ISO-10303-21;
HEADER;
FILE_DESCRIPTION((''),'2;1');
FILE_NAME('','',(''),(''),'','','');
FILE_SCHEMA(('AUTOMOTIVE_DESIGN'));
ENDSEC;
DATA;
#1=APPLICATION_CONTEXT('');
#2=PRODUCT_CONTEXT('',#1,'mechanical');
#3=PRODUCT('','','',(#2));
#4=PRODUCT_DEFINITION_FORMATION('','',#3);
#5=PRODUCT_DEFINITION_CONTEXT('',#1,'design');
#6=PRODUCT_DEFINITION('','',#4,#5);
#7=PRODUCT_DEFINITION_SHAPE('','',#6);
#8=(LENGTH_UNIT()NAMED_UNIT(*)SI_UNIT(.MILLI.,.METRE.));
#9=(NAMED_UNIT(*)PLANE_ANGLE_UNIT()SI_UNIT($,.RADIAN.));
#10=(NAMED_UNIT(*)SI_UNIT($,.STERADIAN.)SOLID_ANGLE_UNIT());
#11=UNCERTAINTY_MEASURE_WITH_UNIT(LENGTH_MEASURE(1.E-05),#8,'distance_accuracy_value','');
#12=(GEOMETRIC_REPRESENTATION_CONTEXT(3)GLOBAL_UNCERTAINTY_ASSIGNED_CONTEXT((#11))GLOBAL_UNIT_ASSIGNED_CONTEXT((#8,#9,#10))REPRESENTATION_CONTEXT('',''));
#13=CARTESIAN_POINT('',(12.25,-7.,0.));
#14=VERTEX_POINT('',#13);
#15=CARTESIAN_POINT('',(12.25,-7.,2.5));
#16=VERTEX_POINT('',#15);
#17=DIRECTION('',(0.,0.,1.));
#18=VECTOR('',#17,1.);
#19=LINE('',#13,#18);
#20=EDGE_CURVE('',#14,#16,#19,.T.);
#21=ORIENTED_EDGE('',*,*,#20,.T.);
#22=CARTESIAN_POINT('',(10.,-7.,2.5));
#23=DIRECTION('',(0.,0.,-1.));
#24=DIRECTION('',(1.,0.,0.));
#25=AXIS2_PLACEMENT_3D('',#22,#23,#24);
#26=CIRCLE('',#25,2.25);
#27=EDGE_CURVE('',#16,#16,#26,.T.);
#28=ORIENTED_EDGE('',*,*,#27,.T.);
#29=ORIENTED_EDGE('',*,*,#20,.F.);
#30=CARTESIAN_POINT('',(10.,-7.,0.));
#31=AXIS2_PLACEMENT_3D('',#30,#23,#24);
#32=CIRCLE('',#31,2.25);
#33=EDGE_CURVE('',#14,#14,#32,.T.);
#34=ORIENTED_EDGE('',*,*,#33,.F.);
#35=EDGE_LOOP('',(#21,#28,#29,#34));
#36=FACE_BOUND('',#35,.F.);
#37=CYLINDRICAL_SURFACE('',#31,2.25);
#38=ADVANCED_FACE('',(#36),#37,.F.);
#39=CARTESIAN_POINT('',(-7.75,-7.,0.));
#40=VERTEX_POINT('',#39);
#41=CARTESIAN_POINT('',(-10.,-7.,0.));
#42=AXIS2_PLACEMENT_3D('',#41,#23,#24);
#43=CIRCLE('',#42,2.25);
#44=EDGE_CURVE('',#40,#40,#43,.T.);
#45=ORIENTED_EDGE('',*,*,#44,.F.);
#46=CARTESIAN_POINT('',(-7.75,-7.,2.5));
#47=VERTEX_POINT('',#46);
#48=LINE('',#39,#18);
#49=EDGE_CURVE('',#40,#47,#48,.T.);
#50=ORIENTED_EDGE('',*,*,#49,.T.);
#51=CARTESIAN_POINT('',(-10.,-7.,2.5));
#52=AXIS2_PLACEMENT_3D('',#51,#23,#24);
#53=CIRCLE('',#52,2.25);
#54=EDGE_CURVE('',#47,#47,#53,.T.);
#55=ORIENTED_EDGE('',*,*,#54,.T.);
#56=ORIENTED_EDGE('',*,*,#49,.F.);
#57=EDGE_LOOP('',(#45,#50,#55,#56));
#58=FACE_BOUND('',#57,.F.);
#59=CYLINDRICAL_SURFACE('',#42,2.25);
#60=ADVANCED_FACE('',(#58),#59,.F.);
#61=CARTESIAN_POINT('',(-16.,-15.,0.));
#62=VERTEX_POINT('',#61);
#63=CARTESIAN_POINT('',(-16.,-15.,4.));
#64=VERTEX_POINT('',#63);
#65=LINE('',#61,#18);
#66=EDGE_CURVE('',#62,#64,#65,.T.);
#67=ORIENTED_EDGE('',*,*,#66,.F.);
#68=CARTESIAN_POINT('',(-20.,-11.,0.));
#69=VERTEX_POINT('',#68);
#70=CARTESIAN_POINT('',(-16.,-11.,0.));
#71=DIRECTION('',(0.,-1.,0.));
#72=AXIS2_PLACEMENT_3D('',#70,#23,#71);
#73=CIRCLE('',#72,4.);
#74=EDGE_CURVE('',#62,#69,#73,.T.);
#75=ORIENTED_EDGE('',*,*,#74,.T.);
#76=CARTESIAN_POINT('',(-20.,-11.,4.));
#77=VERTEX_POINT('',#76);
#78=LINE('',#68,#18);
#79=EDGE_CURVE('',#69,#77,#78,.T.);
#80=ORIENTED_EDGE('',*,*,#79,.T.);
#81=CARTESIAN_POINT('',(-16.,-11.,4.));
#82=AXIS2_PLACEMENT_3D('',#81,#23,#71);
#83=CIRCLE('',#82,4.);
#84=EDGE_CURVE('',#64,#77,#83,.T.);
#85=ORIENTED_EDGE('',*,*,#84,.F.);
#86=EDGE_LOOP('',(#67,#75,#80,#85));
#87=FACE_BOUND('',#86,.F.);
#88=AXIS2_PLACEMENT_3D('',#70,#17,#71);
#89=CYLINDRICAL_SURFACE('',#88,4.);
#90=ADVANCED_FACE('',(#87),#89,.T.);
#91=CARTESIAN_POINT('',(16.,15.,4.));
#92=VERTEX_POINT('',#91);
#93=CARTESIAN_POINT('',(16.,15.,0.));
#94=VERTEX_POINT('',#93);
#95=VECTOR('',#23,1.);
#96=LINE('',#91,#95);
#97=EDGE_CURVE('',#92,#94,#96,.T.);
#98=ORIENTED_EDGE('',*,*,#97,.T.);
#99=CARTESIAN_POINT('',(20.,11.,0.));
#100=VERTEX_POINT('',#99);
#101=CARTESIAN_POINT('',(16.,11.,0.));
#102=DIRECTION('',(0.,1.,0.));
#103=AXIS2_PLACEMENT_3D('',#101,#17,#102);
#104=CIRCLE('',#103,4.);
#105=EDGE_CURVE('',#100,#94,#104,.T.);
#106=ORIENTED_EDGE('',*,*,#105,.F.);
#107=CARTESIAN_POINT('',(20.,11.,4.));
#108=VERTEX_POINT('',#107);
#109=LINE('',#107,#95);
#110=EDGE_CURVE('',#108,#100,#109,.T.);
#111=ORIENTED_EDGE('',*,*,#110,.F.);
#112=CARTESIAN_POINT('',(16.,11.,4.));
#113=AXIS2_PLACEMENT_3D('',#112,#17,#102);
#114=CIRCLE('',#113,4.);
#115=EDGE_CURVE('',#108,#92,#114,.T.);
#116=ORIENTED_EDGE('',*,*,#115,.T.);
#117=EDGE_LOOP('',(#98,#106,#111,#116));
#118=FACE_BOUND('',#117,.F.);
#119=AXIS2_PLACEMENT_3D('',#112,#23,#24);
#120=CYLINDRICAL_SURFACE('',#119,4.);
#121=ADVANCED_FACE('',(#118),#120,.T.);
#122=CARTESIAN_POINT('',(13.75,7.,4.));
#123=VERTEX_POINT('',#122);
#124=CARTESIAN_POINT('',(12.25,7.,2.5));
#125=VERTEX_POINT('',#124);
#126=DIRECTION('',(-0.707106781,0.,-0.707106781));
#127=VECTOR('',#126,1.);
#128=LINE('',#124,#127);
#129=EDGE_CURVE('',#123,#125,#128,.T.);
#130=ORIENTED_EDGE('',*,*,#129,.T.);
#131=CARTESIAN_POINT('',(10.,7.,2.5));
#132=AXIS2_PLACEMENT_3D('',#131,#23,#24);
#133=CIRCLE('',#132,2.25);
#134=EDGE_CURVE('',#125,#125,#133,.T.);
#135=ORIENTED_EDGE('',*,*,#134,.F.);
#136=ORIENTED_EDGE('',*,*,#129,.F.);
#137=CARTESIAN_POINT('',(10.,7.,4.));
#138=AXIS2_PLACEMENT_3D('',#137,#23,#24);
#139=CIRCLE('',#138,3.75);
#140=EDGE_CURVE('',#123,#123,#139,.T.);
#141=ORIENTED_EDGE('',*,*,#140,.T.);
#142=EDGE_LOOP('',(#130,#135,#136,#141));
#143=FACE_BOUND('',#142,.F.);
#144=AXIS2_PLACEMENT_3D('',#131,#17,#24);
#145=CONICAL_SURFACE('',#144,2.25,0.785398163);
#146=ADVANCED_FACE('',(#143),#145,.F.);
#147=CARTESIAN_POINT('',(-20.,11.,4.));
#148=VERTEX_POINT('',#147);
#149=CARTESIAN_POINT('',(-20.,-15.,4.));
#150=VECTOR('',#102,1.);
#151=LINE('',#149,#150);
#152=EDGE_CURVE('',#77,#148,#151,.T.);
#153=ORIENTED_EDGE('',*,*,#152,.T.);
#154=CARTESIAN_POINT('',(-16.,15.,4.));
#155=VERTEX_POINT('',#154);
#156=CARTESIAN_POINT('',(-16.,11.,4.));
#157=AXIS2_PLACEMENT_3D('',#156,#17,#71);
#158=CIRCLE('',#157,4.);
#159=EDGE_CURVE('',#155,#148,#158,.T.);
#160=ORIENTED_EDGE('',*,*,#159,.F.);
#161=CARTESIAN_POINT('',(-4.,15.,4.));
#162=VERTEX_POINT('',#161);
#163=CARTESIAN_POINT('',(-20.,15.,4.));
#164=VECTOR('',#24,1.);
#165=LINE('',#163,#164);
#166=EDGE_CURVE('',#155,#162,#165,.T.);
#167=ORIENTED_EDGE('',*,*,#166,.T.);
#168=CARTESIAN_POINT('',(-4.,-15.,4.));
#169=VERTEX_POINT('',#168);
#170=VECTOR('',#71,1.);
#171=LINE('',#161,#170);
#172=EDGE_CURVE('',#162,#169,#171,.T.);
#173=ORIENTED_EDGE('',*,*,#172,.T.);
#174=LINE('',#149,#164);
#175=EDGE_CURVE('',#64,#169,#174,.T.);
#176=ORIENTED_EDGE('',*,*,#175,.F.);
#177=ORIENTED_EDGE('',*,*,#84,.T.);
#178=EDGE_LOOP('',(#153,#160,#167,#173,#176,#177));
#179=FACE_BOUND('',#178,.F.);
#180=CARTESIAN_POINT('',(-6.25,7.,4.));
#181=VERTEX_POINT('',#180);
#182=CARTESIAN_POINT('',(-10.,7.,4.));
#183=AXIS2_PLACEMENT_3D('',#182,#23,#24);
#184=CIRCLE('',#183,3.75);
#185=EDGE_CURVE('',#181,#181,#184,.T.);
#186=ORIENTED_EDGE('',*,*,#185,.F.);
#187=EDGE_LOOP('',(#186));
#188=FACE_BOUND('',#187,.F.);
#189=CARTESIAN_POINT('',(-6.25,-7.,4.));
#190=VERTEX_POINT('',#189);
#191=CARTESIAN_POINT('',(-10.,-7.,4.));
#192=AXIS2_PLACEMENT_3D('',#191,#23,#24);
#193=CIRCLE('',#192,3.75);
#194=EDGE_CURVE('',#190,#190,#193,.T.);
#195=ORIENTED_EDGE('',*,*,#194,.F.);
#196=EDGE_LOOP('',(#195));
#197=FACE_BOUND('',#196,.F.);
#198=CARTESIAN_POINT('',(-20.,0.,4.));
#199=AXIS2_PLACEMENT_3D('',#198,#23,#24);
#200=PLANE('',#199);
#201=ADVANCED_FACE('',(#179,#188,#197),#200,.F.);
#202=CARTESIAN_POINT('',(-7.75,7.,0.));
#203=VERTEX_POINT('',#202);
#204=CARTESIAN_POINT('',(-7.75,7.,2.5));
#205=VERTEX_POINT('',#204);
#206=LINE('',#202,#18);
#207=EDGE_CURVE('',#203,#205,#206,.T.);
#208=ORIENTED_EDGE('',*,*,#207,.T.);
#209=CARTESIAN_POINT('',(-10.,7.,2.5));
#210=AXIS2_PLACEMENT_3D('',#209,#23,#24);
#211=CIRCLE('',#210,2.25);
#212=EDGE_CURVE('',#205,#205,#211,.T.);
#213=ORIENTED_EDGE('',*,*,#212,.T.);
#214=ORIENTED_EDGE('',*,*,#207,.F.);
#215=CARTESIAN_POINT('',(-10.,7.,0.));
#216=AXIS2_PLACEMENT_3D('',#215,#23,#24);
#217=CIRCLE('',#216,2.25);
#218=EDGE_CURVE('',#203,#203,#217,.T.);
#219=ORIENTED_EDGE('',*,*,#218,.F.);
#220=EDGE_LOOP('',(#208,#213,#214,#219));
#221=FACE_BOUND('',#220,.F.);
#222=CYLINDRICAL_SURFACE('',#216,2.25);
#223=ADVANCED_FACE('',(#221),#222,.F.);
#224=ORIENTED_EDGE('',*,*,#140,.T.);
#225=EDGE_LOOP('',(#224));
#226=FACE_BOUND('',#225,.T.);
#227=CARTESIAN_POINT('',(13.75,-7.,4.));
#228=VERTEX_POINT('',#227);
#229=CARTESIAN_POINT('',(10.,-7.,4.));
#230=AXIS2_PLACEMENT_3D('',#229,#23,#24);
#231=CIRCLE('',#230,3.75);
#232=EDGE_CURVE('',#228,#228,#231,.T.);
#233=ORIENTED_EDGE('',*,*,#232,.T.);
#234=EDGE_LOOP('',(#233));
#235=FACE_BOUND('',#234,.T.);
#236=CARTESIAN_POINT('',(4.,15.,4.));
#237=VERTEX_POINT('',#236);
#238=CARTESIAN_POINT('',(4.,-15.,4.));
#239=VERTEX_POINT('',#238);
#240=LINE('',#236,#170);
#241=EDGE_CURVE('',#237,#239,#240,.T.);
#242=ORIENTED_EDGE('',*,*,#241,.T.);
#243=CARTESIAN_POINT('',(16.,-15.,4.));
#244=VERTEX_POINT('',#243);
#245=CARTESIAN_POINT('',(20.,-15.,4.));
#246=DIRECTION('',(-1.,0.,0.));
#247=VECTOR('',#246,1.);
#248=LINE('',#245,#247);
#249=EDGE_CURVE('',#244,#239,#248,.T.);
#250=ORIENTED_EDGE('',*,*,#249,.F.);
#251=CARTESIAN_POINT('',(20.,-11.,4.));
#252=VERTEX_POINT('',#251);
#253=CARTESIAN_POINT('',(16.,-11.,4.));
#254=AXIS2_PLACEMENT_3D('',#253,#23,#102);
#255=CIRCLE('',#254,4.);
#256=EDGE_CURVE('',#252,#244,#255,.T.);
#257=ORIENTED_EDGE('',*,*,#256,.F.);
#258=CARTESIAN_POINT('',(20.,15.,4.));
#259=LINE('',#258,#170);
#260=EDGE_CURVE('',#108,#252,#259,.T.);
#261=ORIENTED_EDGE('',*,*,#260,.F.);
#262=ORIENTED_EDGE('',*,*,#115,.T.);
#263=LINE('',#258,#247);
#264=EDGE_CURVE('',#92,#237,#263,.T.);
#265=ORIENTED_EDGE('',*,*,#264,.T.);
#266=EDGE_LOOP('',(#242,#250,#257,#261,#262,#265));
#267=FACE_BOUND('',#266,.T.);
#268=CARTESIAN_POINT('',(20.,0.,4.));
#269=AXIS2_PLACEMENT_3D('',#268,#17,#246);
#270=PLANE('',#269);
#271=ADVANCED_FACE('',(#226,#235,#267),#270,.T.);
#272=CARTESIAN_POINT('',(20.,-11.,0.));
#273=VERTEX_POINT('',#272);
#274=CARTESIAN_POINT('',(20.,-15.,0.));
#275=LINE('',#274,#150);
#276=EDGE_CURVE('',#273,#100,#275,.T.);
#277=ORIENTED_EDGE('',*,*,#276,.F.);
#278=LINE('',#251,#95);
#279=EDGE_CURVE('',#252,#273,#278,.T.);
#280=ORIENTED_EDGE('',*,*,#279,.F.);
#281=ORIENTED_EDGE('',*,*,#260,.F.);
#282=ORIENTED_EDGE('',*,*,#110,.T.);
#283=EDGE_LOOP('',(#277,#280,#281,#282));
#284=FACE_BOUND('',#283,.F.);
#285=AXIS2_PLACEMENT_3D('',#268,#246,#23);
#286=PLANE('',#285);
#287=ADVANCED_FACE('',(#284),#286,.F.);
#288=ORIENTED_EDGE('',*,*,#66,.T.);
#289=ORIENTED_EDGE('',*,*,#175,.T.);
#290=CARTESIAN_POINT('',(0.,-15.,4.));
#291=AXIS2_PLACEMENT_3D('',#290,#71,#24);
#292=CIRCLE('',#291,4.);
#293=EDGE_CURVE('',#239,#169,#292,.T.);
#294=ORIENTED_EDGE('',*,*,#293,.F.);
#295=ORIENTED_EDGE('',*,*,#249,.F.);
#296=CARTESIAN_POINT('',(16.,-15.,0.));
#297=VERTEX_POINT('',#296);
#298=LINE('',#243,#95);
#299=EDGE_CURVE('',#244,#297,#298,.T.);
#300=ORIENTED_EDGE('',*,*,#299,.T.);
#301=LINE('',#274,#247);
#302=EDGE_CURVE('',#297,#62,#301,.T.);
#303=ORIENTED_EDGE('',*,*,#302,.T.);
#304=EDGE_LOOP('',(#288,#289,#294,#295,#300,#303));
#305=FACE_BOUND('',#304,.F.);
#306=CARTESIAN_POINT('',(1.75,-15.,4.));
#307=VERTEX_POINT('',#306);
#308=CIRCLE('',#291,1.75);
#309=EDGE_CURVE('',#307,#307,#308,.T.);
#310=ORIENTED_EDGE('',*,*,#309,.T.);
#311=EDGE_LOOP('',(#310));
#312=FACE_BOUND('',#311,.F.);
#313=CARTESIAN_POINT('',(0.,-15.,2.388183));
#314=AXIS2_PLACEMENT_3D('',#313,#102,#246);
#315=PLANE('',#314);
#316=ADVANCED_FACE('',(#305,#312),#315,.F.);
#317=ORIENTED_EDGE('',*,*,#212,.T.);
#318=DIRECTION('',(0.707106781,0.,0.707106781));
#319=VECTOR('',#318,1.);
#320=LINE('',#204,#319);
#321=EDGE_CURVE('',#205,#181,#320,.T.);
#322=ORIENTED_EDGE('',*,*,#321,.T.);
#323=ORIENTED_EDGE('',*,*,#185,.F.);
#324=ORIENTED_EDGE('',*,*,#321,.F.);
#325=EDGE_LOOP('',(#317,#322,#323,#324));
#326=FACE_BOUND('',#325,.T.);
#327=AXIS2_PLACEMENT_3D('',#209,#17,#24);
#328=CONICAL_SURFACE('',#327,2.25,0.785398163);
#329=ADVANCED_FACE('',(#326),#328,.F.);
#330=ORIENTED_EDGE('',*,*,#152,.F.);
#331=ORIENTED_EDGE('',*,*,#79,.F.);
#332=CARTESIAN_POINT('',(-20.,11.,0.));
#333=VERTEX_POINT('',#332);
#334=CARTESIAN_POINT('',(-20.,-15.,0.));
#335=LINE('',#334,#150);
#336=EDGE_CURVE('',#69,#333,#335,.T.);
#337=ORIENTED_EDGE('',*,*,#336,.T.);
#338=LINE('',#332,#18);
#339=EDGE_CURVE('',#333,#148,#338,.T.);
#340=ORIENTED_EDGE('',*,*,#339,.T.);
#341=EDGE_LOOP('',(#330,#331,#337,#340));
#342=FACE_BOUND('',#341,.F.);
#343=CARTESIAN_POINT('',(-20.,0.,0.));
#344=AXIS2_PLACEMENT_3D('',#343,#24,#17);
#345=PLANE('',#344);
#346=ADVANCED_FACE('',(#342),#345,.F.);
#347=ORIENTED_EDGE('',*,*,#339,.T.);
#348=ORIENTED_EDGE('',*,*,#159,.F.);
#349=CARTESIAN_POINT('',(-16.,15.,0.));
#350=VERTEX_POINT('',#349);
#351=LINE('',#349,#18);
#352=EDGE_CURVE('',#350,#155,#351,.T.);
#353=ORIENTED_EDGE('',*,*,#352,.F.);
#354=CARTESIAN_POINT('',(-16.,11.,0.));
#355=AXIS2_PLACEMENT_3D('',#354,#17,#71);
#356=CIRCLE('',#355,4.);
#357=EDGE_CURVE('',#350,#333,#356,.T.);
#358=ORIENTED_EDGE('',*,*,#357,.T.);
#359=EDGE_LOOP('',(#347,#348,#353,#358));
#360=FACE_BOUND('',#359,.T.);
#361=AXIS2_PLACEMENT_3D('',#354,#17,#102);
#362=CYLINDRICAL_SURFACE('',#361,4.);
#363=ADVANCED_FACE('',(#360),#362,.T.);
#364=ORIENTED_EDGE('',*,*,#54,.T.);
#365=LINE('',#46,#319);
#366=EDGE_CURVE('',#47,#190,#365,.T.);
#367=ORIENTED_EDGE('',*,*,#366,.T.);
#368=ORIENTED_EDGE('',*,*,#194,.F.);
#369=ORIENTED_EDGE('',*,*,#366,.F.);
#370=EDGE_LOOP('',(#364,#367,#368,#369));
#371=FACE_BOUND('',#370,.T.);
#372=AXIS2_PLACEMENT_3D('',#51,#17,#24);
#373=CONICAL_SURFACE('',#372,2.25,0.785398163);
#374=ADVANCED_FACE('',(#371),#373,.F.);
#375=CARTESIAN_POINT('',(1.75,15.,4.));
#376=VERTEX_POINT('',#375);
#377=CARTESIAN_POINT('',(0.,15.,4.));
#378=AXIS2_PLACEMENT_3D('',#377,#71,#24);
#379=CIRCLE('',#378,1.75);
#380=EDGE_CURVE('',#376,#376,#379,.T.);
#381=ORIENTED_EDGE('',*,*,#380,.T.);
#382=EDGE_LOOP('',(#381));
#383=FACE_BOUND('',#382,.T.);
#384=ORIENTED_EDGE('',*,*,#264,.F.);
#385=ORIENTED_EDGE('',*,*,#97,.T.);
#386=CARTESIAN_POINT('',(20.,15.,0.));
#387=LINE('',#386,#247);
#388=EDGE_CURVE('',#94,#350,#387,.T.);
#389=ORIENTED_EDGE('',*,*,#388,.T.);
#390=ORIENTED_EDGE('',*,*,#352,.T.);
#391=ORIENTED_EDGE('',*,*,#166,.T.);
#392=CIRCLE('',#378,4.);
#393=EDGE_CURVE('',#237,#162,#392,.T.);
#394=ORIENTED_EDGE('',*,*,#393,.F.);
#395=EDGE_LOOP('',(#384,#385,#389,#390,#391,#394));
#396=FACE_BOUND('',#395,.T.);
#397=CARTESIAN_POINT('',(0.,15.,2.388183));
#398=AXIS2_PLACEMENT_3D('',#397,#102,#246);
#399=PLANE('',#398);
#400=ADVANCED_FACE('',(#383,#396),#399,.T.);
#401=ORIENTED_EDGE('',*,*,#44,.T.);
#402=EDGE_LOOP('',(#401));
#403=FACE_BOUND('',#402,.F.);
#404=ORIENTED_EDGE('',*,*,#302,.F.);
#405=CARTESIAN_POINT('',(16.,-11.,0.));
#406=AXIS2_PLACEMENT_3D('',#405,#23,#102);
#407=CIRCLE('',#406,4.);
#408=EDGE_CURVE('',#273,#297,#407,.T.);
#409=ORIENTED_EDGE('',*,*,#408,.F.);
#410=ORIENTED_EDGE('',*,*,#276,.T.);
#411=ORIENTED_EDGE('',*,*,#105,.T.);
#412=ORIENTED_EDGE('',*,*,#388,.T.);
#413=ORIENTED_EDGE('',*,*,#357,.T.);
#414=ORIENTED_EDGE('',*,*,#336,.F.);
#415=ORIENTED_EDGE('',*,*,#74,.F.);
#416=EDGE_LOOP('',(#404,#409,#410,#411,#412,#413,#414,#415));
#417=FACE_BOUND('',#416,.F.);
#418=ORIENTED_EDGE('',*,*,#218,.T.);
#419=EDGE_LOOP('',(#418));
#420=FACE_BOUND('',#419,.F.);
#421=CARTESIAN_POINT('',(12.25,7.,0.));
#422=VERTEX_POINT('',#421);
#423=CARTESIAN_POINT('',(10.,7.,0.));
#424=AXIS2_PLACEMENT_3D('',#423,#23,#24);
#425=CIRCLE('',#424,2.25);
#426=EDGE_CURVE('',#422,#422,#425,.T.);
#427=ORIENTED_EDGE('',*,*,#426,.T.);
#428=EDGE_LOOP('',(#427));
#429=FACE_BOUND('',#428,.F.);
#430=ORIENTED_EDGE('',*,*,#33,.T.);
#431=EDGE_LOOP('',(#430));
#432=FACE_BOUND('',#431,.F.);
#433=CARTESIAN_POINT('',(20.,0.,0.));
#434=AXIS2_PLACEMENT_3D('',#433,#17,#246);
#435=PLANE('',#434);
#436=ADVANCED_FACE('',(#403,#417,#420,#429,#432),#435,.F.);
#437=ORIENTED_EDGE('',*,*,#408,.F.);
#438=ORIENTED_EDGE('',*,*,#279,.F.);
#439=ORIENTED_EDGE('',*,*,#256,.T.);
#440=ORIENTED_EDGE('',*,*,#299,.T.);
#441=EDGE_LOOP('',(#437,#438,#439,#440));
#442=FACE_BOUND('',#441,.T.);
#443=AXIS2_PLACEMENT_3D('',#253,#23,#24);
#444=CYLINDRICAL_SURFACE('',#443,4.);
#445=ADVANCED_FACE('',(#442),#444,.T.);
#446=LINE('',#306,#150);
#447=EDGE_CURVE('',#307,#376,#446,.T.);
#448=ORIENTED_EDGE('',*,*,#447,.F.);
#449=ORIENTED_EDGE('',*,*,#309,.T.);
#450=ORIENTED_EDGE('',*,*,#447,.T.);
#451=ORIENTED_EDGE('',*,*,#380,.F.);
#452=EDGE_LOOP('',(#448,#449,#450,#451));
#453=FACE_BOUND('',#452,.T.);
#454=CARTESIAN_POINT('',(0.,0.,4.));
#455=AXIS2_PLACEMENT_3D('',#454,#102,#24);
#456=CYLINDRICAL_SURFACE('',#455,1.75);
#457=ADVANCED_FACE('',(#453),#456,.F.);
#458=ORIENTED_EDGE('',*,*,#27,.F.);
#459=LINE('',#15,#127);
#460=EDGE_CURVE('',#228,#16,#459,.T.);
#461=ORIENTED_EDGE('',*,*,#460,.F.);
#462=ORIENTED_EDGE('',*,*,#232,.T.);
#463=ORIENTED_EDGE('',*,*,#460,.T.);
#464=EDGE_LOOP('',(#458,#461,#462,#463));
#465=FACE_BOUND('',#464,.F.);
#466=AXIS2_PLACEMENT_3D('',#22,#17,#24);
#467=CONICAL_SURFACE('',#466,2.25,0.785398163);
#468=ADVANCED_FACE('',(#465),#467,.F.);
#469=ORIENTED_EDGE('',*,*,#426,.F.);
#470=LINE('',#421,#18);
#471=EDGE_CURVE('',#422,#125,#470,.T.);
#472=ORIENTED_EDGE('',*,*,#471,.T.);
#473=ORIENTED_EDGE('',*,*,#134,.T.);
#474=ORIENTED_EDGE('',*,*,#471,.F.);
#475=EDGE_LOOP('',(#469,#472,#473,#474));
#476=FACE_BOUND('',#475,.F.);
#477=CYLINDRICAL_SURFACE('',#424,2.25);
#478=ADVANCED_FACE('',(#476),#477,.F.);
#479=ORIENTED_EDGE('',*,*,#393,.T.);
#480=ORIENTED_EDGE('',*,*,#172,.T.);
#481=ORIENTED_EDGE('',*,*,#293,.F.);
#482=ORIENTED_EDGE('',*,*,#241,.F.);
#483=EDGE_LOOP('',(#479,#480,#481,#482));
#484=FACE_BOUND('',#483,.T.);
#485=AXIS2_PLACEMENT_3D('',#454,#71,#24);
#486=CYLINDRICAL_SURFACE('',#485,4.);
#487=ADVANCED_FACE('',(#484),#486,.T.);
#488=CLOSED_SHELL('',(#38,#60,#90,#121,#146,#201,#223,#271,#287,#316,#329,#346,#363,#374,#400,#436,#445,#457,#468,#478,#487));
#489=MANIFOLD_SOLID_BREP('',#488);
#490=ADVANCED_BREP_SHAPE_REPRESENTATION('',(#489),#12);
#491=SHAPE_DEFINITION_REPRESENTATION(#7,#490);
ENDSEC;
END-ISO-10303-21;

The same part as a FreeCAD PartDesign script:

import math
import FreeCAD as App
import Part
import Sketcher


def edges_at(feature, points):
    """Names of the edges that pass closest to the given points."""
    edges = feature.Shape.Edges
    near = lambda p: min(range(len(edges)), key=lambda i: edges[i].distToShape(Part.Vertex(*p))[0])
    return sorted({f"Edge{near(p) + 1}" for p in points})

doc = App.newDocument("Part")
body = doc.addObject("PartDesign::Body", "Body")

sketch1 = body.newObject("Sketcher::SketchObject", "Sketch")
sketch1.AttachmentSupport = (doc.getObject("XZ_Plane"), [""])
sketch1.MapMode = "FlatFace"
sketch1.addGeometry([
    Part.LineSegment(App.Vector(20, 0, 0), App.Vector(20, 4, 0)),
    Part.LineSegment(App.Vector(20, 4, 0), App.Vector(4, 4, 0)),
    Part.ArcOfCircle(Part.Circle(App.Vector(0, 4, 0), App.Vector(0, 0, 1), 4), math.radians(0), math.radians(180)),
    Part.LineSegment(App.Vector(-4, 4, 0), App.Vector(-20, 4, 0)),
    Part.LineSegment(App.Vector(-20, 4, 0), App.Vector(-20, 0, 0)),
    Part.LineSegment(App.Vector(-20, 0, 0), App.Vector(20, 0, 0)),
    Part.Circle(App.Vector(0, 4, 0), App.Vector(0, 0, 1), 1.8),
], False)
sketch1.addConstraint([
    Sketcher.Constraint("Coincident", 0, 2, 1, 1),
    Sketcher.Constraint("Coincident", 1, 2, 2, 1),
    Sketcher.Constraint("Coincident", 2, 2, 3, 1),
    Sketcher.Constraint("Coincident", 3, 2, 4, 1),
    Sketcher.Constraint("Coincident", 4, 2, 5, 1),
    Sketcher.Constraint("Coincident", 5, 2, 0, 1),
    Sketcher.Constraint("Vertical", 0),
    Sketcher.Constraint("Horizontal", 1),
    Sketcher.Constraint("Horizontal", 3),
    Sketcher.Constraint("Vertical", 4),
    Sketcher.Constraint("Horizontal", 5),
    Sketcher.Constraint("Coincident", 6, 3, 2, 3),
    Sketcher.Constraint("Symmetric", 4, 2, 5, 2, -1, 1),
    Sketcher.Constraint("Symmetric", 1, 2, 2, 2, -2),
    Sketcher.Constraint("Horizontal", 6, 3, 0, 2),
    Sketcher.Constraint("Radius", 2, 4.0),
    Sketcher.Constraint("Diameter", 6, 3.5),
    Sketcher.Constraint("DistanceX", 1, 2, 1, 1, 16.0),
    Sketcher.Constraint("DistanceY", 0, 1, 0, 2, 4.0),
])
pad1 = body.newObject("PartDesign::Pad", "Pad")
pad1.Profile = sketch1
pad1.Length = 30
pad1.Midplane = True

sketch2 = body.newObject("Sketcher::SketchObject", "Sketch001")
sketch2.AttachmentSupport = (doc.getObject("XY_Plane"), [""])
sketch2.MapMode = "FlatFace"
sketch2.addGeometry([
    Part.Circle(App.Vector(10, -7, 0), App.Vector(0, 0, 1), 2.2),
    Part.Circle(App.Vector(10, 7, 0), App.Vector(0, 0, 1), 2.2),
    Part.Circle(App.Vector(-10, -7, 0), App.Vector(0, 0, 1), 2.2),
    Part.Circle(App.Vector(-10, 7, 0), App.Vector(0, 0, 1), 2.2),
], False)
sketch2.addConstraint([
    Sketcher.Constraint("Equal", 0, 1),
    Sketcher.Constraint("Equal", 1, 2),
    Sketcher.Constraint("Equal", 2, 3),
    Sketcher.Constraint("Symmetric", 1, 3, 2, 3, -1, 1),
    Sketcher.Constraint("Symmetric", 0, 3, 3, 3, -1, 1),
    Sketcher.Constraint("Symmetric", 0, 3, 2, 3, -2),
    Sketcher.Constraint("Diameter", 0, 4.5),
    Sketcher.Constraint("DistanceX", -1, 1, 0, 3, 10.0),
    Sketcher.Constraint("DistanceY", 0, 3, -1, 1, 7.0),
])
pocket1 = body.newObject("PartDesign::Pocket", "Pocket")
pocket1.Profile = sketch2
pocket1.Type = "ThroughAll"
pocket1.Reversed = True
doc.recompute()

fillet = body.newObject("PartDesign::Fillet", "Fillet")
fillet.Base = (pocket1, edges_at(pocket1, [
    (20, -15, 2),
    (20, 15, 2),
    (-20, 15, 2),
    (-20, -15, 2),
]))
fillet.Radius = 4
doc.recompute()

chamfer = body.newObject("PartDesign::Chamfer", "Chamfer")
chamfer.Base = (fillet, edges_at(fillet, [
    (-12.25, -7, 4),
    (-12.25, 7, 4),
    (7.75, 7, 4),
    (7.75, -7, 4),
]))
chamfer.Size = 1.5

doc.recompute()
